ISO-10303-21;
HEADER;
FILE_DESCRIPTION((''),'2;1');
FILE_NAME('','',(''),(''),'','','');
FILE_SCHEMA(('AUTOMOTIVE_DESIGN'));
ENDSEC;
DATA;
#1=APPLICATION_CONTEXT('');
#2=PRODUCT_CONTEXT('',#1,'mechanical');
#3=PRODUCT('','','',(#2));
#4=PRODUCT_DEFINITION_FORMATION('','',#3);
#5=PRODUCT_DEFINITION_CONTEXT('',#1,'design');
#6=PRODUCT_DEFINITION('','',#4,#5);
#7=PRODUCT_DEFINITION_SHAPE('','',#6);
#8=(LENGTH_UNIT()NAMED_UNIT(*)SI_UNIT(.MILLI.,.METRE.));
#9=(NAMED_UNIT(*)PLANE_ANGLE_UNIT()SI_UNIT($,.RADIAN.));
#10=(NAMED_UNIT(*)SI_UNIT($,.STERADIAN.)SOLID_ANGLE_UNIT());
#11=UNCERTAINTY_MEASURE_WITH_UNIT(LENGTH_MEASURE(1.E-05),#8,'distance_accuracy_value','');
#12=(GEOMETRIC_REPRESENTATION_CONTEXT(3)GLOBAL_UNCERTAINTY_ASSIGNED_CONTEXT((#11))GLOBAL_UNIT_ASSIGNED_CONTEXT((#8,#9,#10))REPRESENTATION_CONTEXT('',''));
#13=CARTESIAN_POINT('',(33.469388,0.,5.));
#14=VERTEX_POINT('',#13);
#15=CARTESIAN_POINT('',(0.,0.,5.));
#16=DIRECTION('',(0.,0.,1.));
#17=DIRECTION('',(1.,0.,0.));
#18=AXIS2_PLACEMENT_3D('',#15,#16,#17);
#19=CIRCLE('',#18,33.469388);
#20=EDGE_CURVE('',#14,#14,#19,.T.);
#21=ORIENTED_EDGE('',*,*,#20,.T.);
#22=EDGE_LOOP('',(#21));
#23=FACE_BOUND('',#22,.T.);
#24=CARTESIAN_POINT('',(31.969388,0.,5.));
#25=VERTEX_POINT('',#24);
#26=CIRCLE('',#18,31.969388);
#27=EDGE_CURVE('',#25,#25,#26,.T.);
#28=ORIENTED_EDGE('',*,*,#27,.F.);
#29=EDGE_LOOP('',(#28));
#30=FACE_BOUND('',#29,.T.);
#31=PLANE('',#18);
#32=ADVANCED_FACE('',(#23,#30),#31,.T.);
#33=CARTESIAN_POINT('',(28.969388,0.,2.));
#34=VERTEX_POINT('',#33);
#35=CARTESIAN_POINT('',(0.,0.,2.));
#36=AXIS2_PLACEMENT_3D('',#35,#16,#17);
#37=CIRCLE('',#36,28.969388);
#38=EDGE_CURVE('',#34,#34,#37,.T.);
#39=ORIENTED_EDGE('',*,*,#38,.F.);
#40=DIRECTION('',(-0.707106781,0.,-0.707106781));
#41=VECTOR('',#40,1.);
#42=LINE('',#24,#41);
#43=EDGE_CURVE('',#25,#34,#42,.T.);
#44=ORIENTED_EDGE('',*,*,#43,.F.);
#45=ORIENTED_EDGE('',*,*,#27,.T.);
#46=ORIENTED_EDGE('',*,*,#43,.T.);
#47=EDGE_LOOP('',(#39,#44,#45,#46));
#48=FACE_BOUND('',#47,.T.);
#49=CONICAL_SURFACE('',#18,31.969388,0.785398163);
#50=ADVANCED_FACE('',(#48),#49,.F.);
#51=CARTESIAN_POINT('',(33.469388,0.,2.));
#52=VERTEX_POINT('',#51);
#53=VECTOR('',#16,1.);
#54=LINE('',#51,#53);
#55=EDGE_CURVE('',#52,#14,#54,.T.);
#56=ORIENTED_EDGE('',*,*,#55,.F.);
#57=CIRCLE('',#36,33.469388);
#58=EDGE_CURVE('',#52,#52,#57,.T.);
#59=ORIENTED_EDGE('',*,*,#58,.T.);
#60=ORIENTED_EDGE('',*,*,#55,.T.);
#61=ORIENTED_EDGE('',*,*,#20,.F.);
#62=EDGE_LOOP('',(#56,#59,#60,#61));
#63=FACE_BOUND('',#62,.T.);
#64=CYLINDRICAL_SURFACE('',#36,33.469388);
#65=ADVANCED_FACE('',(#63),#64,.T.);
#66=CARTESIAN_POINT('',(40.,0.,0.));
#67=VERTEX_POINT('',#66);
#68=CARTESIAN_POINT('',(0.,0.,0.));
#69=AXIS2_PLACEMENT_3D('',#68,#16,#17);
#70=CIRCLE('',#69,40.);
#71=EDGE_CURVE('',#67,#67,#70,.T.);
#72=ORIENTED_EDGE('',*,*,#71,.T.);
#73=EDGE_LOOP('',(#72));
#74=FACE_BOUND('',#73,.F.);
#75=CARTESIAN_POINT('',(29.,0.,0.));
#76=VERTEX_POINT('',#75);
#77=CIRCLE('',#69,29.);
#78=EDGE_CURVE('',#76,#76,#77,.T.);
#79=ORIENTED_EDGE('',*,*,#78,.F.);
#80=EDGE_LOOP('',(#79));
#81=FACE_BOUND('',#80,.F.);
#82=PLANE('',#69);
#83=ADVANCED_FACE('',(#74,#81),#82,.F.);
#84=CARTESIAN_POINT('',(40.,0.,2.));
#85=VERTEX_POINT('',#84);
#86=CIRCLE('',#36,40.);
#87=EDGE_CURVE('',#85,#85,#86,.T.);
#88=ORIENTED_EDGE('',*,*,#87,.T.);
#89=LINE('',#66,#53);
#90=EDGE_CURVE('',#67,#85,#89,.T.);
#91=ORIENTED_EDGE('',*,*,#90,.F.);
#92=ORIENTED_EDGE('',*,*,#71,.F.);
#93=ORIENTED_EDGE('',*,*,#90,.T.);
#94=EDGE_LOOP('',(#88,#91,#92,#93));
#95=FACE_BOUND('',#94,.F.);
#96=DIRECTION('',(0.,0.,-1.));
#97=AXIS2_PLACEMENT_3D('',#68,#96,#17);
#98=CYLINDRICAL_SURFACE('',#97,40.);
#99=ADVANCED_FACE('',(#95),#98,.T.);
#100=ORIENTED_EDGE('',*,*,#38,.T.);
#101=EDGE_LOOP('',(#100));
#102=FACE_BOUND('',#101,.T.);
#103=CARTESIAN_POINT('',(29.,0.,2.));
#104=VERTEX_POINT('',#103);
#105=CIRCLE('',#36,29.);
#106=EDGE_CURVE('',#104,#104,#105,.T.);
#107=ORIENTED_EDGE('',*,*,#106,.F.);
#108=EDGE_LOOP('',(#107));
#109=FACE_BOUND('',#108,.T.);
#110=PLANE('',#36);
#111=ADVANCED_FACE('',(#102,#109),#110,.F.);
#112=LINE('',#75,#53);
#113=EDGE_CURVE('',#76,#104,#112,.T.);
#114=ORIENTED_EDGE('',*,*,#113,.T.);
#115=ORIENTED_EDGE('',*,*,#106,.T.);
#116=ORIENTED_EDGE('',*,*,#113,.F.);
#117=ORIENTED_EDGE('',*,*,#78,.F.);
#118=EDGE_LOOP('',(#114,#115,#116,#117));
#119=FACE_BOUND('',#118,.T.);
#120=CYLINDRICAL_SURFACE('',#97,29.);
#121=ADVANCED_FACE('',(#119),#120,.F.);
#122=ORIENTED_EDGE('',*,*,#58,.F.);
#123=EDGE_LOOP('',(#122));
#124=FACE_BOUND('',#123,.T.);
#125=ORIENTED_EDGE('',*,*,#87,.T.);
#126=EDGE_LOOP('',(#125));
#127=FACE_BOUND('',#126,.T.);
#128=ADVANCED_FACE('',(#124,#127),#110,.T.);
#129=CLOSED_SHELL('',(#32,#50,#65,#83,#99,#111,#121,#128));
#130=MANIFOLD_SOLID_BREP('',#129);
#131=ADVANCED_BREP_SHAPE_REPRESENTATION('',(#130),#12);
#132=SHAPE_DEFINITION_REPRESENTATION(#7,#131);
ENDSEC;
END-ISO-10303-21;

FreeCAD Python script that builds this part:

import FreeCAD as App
import Part
import Sketcher

V = App.Vector
Q = App.Units.Quantity

doc = App.newDocument("Part")
params = doc.addObject("Spreadsheet::Sheet", "Params")
for row, (alias, value) in enumerate([
    ("sketch1_diameter", "80 mm"),
    ("sketch1_diameter2", "58 mm"),
    ("pad1_length", "2 mm"),
    ("sketch2_height", "3 mm"),
    ("sketch2_width", "4.5 mm"),
    ("revolution_angle", "360 deg"),
], start=1):
    params.set(f"A{row}", alias)
    params.set(f"B{row}", "=" + value)
    params.setAlias(f"B{row}", alias)

body = doc.addObject("PartDesign::Body", "Body")

sketch1 = body.newObject("Sketcher::SketchObject", "Sketch")
sketch1.AttachmentSupport = (doc.getObject("XY_Plane"), [""])
sketch1.MapMode = "FlatFace"
sketch1.addGeometry([
    Part.Circle(V(0, 0, 0), V(0, 0, 1), 40),
    Part.Circle(V(0, 0, 0), V(0, 0, 1), 29),
], False)
sketch1.addConstraint([
    Sketcher.Constraint("Coincident", 0, 3, -1, 1),
    Sketcher.Constraint("Coincident", 1, 3, -1, 1),
    Sketcher.Constraint("Diameter", 0, 80.0),
    Sketcher.Constraint("Diameter", 1, 58.0),
])
sketch1.setExpression("Constraints[2]", "Params.sketch1_diameter")
sketch1.setExpression("Constraints[3]", "Params.sketch1_diameter2")
pad1 = body.newObject("PartDesign::Pad", "Pad")
pad1.Profile = sketch1
pad1.setExpression("Length", "Params.pad1_length")

sketch2 = body.newObject("Sketcher::SketchObject", "Sketch001")
sketch2.AttachmentSupport = (doc.getObject("XZ_Plane"), [""])
sketch2.MapMode = "FlatFace"
sketch2.addGeometry([
    Part.LineSegment(V(32, 5, 0), V(29, 2, 0)),
    Part.LineSegment(V(29, 2, 0), V(33.5, 2, 0)),
    Part.LineSegment(V(33.5, 2, 0), V(33.5, 5, 0)),
    Part.LineSegment(V(33.5, 5, 0), V(32, 5, 0)),
], False)
sketch2.addConstraint([
    Sketcher.Constraint("Coincident", 0, 2, 1, 1),
    Sketcher.Constraint("Coincident", 1, 2, 2, 1),
    Sketcher.Constraint("Coincident", 2, 2, 3, 1),
    Sketcher.Constraint("Coincident", 3, 2, 0, 1),
    Sketcher.Constraint("Horizontal", 1),
    Sketcher.Constraint("Vertical", 2),
    Sketcher.Constraint("Horizontal", 3),
    Sketcher.Constraint("DistanceY", 2, 1, 2, 2, 3.0),
    Sketcher.Constraint("Angle", 0, Q("-135 deg")),
    Sketcher.Constraint("DistanceX", 1, 1, 1, 2, 4.5),
    Sketcher.Constraint("DistanceY", -1, 1, 0, 2, 2.0),
    Sketcher.Constraint("DistanceX", -1, 1, 1, 2, 33.469388),
])
sketch2.setExpression("Constraints[7]", "Params.sketch2_height")
sketch2.setExpression("Constraints[9]", "Params.sketch2_width")
revolution = body.newObject("PartDesign::Revolution", "Revolution")
revolution.Profile = sketch2
revolution.ReferenceAxis = (sketch2, ["V_Axis"])
revolution.setExpression("Angle", "Params.revolution_angle")

doc.recompute()
